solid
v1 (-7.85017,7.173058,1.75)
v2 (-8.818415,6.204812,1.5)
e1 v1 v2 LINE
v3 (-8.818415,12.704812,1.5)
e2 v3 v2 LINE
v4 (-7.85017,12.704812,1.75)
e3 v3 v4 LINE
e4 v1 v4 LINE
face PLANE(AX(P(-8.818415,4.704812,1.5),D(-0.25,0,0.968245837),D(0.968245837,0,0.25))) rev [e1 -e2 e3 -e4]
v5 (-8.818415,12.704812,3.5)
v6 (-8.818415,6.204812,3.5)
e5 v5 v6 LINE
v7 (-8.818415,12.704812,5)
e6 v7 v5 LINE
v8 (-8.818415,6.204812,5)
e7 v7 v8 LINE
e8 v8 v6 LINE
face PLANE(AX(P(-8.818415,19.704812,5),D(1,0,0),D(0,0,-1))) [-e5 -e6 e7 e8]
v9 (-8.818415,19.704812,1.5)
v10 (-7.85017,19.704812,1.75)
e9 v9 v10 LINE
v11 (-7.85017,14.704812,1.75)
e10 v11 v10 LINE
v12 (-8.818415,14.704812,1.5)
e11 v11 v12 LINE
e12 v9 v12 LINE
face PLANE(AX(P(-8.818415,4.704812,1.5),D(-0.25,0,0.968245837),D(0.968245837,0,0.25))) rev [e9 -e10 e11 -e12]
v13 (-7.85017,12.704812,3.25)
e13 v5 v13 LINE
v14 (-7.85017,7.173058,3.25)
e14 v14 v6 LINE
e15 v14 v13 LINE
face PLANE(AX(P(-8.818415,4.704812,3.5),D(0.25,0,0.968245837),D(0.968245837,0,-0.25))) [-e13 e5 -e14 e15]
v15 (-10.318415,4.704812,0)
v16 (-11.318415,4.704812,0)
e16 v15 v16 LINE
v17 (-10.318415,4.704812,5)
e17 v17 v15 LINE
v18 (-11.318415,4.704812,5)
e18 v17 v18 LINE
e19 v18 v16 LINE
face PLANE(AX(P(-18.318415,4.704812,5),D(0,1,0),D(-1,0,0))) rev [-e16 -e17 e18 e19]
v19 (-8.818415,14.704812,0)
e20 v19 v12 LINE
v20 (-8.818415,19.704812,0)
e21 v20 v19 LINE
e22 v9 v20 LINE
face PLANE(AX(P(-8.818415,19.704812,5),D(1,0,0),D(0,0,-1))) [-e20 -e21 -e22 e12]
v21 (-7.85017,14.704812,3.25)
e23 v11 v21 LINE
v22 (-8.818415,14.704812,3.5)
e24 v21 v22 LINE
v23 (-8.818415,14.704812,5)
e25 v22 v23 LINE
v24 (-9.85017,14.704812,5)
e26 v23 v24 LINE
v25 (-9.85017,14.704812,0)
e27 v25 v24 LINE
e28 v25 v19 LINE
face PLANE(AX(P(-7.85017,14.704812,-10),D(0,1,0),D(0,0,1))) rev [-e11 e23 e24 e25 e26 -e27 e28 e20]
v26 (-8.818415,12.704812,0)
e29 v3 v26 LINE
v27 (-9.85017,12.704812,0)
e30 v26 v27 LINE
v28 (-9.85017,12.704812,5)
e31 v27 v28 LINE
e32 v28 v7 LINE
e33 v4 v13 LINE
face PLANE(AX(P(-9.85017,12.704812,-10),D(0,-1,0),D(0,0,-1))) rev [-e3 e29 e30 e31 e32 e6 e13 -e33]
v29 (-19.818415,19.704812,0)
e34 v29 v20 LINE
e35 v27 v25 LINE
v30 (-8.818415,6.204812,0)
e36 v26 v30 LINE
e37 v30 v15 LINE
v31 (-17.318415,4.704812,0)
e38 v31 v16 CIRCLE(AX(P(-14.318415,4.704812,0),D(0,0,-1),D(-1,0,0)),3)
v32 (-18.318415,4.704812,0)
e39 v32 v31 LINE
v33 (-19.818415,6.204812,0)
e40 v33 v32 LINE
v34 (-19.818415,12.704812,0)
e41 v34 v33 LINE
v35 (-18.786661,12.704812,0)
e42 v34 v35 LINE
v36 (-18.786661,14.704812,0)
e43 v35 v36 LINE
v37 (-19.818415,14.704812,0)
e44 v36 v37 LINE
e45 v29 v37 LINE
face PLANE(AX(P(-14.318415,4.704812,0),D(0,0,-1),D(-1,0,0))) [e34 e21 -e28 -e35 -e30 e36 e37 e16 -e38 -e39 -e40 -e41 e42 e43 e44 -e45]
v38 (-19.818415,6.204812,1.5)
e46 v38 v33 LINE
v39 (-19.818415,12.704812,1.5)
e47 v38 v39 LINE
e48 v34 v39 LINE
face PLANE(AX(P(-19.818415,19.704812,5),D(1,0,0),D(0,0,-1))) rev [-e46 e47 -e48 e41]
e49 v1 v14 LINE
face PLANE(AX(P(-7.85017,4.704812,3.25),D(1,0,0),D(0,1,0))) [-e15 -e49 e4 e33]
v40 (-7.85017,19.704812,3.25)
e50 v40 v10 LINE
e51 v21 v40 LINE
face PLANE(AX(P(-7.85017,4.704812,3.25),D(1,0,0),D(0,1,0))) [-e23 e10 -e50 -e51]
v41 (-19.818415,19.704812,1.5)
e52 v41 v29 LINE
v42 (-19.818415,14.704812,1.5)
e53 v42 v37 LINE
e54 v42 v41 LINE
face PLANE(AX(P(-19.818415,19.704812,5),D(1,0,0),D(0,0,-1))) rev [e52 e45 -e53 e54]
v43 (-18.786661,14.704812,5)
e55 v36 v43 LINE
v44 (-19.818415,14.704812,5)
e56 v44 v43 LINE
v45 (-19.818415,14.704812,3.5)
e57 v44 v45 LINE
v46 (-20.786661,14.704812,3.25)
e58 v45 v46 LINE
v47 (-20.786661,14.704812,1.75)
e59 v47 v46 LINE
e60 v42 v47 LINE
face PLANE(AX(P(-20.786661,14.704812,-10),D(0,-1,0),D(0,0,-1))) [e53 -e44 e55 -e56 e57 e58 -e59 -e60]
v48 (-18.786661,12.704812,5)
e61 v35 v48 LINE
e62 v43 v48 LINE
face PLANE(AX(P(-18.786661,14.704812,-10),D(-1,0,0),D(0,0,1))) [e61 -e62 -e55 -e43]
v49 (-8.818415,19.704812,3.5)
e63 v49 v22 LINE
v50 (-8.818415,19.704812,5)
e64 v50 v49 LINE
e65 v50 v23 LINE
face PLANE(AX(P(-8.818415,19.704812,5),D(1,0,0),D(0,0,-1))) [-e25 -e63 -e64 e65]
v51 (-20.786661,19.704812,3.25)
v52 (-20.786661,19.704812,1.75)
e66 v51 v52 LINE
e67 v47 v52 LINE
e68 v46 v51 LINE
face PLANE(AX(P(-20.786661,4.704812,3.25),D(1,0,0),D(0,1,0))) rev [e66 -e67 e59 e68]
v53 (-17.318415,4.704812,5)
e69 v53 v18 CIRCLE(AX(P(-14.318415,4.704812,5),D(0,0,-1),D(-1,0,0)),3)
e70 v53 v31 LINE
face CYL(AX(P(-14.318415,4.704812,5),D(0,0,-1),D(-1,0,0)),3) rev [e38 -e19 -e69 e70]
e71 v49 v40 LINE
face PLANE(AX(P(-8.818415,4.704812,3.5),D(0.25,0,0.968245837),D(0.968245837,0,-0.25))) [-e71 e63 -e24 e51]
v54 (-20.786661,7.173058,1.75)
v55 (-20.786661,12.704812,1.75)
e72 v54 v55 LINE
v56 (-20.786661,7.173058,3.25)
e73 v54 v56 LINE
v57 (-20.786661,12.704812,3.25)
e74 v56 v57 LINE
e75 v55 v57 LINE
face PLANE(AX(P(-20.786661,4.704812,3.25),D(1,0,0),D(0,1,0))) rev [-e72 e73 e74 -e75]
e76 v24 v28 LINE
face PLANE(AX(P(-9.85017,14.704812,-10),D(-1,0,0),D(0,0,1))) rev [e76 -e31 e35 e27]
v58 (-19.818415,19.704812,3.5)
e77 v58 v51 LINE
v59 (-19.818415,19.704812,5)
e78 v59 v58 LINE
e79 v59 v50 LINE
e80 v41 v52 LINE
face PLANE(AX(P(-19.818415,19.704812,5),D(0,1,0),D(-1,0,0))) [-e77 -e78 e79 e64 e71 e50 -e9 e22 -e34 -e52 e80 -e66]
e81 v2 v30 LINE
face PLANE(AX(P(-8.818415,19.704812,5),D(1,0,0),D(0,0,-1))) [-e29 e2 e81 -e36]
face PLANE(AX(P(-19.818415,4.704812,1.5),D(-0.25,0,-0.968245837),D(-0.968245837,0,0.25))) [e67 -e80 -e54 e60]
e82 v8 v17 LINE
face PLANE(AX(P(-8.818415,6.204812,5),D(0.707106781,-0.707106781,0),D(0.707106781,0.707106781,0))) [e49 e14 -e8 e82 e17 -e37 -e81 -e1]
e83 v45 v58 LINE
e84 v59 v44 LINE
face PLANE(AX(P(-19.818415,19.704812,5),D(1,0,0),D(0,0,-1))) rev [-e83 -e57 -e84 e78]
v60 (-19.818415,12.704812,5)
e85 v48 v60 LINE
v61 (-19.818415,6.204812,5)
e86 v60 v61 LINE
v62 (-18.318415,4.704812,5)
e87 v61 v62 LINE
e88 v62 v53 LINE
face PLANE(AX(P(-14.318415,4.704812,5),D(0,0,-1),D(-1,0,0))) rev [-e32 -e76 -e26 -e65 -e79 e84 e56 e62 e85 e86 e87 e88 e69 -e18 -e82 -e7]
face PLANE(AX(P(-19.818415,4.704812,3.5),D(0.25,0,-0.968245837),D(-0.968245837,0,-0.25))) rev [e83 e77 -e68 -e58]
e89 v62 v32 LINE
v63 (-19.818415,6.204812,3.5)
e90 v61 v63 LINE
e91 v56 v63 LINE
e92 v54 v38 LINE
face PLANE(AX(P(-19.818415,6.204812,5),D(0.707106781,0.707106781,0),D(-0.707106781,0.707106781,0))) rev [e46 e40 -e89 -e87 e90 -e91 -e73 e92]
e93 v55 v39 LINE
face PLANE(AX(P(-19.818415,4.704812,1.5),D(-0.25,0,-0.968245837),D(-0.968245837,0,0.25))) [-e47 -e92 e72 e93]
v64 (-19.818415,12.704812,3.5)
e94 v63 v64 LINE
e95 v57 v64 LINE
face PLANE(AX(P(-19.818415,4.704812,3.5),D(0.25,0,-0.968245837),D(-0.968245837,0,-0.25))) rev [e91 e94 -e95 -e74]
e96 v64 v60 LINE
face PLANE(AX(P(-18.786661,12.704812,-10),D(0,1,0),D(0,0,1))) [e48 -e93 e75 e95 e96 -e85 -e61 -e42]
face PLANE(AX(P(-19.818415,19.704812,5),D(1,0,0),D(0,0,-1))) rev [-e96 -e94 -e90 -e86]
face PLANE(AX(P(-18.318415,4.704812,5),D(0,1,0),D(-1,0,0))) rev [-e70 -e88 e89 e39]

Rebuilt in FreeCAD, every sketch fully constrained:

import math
import FreeCAD as App
import Part
import Sketcher

V = App.Vector
Q = App.Units.Quantity


def add_polygon(sketch, points):
    """Adds a closed chain of lines whose ends are joined by coincident constraints."""
    first, n = sketch.GeometryCount, len(points)
    for a, b in zip(points, points[1:] + points[:1]):
        sketch.addGeometry(Part.LineSegment(App.Vector(*a, 0), App.Vector(*b, 0)), False)
    for i in range(n):
        sketch.addConstraint(Sketcher.Constraint("Coincident", first + i, 2, first + (i + 1) % n, 1))

doc = App.newDocument("Part")
body = doc.addObject("PartDesign::Body", "Body")

# Sketch on XY plane
sketch1 = body.newObject("Sketcher::SketchObject", "Sketch")
sketch1.AttachmentSupport = (doc.getObject("XY_Plane"), [""])
sketch1.MapMode = "FlatFace"
sketch1.addGeometry([
    Part.LineSegment(V(-8.8, 19.7, 0), V(-19.8, 19.7, 0)),  # 0
    Part.LineSegment(V(-19.8, 19.7, 0), V(-19.8, 6.2, 0)),  # 1
    Part.LineSegment(V(-19.8, 6.2, 0), V(-18.3, 4.7, 0)),  # 2
    Part.LineSegment(V(-18.3, 4.7, 0), V(-17.3, 4.7, 0)),  # 3
    Part.ArcOfCircle(Part.Circle(V(-14.3, 4.7, 0), V(0, 0, 1), 3), math.radians(0), math.radians(180)),  # 4
    Part.LineSegment(V(-11.3, 4.7, 0), V(-10.3, 4.7, 0)),  # 5
    Part.LineSegment(V(-10.3, 4.7, 0), V(-8.8, 6.2, 0)),  # 6
    Part.LineSegment(V(-8.8, 6.2, 0), V(-8.8, 19.7, 0)),  # 7
], False)
sketch1.addConstraint([
    Sketcher.Constraint("Coincident", 0, 2, 1, 1),
    Sketcher.Constraint("Coincident", 1, 2, 2, 1),
    Sketcher.Constraint("Coincident", 2, 2, 3, 1),
    Sketcher.Constraint("Coincident", 3, 2, 4, 2),
    Sketcher.Constraint("Coincident", 4, 1, 5, 1),
    Sketcher.Constraint("Coincident", 5, 2, 6, 1),
    Sketcher.Constraint("Coincident", 6, 2, 7, 1),
    Sketcher.Constraint("Coincident", 7, 2, 0, 1),
    Sketcher.Constraint("Horizontal", 0),
    Sketcher.Constraint("Vertical", 1),
    Sketcher.Constraint("Horizontal", 3),
    Sketcher.Constraint("Horizontal", 5),
    Sketcher.Constraint("Vertical", 7),
    Sketcher.Constraint("Perpendicular", 2, 6),
    Sketcher.Constraint("Horizontal", 4, 3, 2, 2),
    Sketcher.Constraint("Horizontal", 3, 2, 4, 1),
    Sketcher.Constraint("Horizontal", 1, 2, 6, 2),
    Sketcher.Constraint("Equal", 3, 5),
    Sketcher.Constraint("Equal", 2, 6),
    Sketcher.Constraint("Radius", 4, Q("3 mm")),
    Sketcher.Constraint("DistanceX", 0, 2, 0, 1, Q("11 mm")),
    Sketcher.Constraint("DistanceX", 3, 1, 3, 2, Q("1 mm")),
    Sketcher.Constraint("DistanceY", 1, 2, 1, 1, Q("13.5 mm")),
    Sketcher.Constraint("DistanceX", 4, 3, -1, 1, Q("14.318415 mm")),
    Sketcher.Constraint("DistanceY", -1, 1, 4, 3, Q("4.704812 mm")),
])
pad1 = body.newObject("PartDesign::Pad", "Pad")
pad1.Profile = sketch1
pad1.Length = 5

# Sketch on XZ plane
sketch2 = body.newObject("Sketcher::SketchObject", "Sketch001")
sketch2.AttachmentSupport = (doc.getObject("XZ_Plane"), [""])
sketch2.MapMode = "FlatFace"
sketch2.AttachmentOffset = App.Placement(V(0, 0, -19.704812), App.Rotation())
add_polygon(sketch2, [(-8.8, 1.5), (-19.8, 1.5), (-20.8, 1.8), (-20.8, 3.2), (-19.8, 3.5), (-8.8, 3.5), (-7.9, 3.2), (-7.9, 1.8)])  # lines 0-7
sketch2.addConstraint([
    Sketcher.Constraint("Horizontal", 0),
    Sketcher.Constraint("Vertical", 2),
    Sketcher.Constraint("Horizontal", 4),
    Sketcher.Constraint("Vertical", 6),
    Sketcher.Constraint("Parallel", 1, 5),
    Sketcher.Constraint("Parallel", 3, 7),
    Sketcher.Constraint("Horizontal", 2, 2, 5, 2),
    Sketcher.Constraint("Horizontal", 1, 2, 6, 2),
    Sketcher.Constraint("Vertical", 0, 2, 3, 2),
    Sketcher.Constraint("Vertical", 4, 2, 7, 2),
    Sketcher.Constraint("DistanceX", 0, 2, 0, 1, Q("11 mm")),
    Sketcher.Constraint("Distance", 1, Q("1 mm")),
    Sketcher.Constraint("DistanceY", 2, 1, 2, 2, Q("1.5 mm")),
    Sketcher.Constraint("DistanceY", 0, 2, 3, 2, Q("2 mm")),
    Sketcher.Constraint("DistanceY", -1, 1, 0, 2, Q("1.5 mm")),
    Sketcher.Constraint("DistanceX", 1, 2, -1, 1, Q("20.786661 mm")),
])
pad2 = body.newObject("PartDesign::Pad", "Pad001")
pad2.Profile = sketch2
pad2.Length = 15

# Sketch on XY plane
sketch3 = body.newObject("Sketcher::SketchObject", "Sketch002")
sketch3.AttachmentSupport = (doc.getObject("XY_Plane"), [""])
sketch3.MapMode = "FlatFace"
sketch3.AttachmentOffset = App.Placement(V(0, 0, 5), App.Rotation())
sketch3.addGeometry([
    Part.LineSegment(V(-18.3, 4.7, 0), V(-20.8, 7.2, 0)),  # 0
    Part.LineSegment(V(-20.8, 7.2, 0), V(-20.8, 3.7, 0)),  # 1
    Part.LineSegment(V(-20.8, 3.7, 0), V(-7.9, 3.7, 0)),  # 2
    Part.LineSegment(V(-7.9, 3.7, 0), V(-7.9, 7.2, 0)),  # 3
    Part.LineSegment(V(-7.9, 7.2, 0), V(-10.3, 4.7, 0)),  # 4
    Part.LineSegment(V(-10.3, 4.7, 0), V(-11.3, 4.7, 0)),  # 5
    Part.ArcOfCircle(Part.Circle(V(-14.3, 4.7, 0), V(0, 0, 1), 3), math.radians(0), math.radians(180)),  # 6
    Part.LineSegment(V(-17.3, 4.7, 0), V(-18.3, 4.7, 0)),  # 7
], False)
sketch3.addConstraint([
    Sketcher.Constraint("Coincident", 0, 2, 1, 1),
    Sketcher.Constraint("Coincident", 1, 2, 2, 1),
    Sketcher.Constraint("Coincident", 2, 2, 3, 1),
    Sketcher.Constraint("Coincident", 3, 2, 4, 1),
    Sketcher.Constraint("Coincident", 4, 2, 5, 1),
    Sketcher.Constraint("Coincident", 5, 2, 6, 1),
    Sketcher.Constraint("Coincident", 6, 2, 7, 1),
    Sketcher.Constraint("Coincident", 7, 2, 0, 1),
    Sketcher.Constraint("Vertical", 1),
    Sketcher.Constraint("Horizontal", 2),
    Sketcher.Constraint("Vertical", 3),
    Sketcher.Constraint("Horizontal", 5),
    Sketcher.Constraint("Horizontal", 7),
    Sketcher.Constraint("Perpendicular", 0, 4),
    Sketcher.Constraint("Horizontal", 0, 2, 3, 2),
    Sketcher.Constraint("Horizontal", 6, 3, 4, 2),
    Sketcher.Constraint("Horizontal", 5, 2, 6, 2),
    Sketcher.Constraint("Equal", 5, 7),
    Sketcher.Constraint("Equal", 0, 4),
    Sketcher.Constraint("Radius", 6, Q("3 mm")),
    Sketcher.Constraint("DistanceX", 5, 2, 5, 1, Q("1 mm")),
    Sketcher.Constraint("DistanceX", 2, 1, 2, 2, Q("12.936492 mm")),
    Sketcher.Constraint("DistanceY", 1, 2, 1, 1, Q("3.463461 mm")),
    Sketcher.Constraint("DistanceX", 0, 2, -1, 1, Q("20.786661 mm")),
    Sketcher.Constraint("DistanceY", -1, 1, 6, 3, Q("4.704812 mm")),
])
pocket1 = body.newObject("PartDesign::Pocket", "Pocket")
pocket1.Profile = sketch3
pocket1.Length = 15

# Sketch on XY plane
sketch4 = body.newObject("Sketcher::SketchObject", "Sketch003")
sketch4.AttachmentSupport = (doc.getObject("XY_Plane"), [""])
sketch4.MapMode = "FlatFace"
sketch4.AttachmentOffset = App.Placement(V(0, 0, 5), App.Rotation())
add_polygon(sketch4, [(-20.8, 14.7), (-20.8, 12.7), (-18.8, 12.7), (-18.8, 14.7)])  # lines 0-3
sketch4.addConstraint([
    Sketcher.Constraint("Vertical", 0),
    Sketcher.Constraint("Horizontal", 1),
    Sketcher.Constraint("Vertical", 2),
    Sketcher.Constraint("Horizontal", 3),
    Sketcher.Constraint("Equal", 3, 0),
    Sketcher.Constraint("DistanceX", 1, 1, 1, 2, Q("2 mm")),
    Sketcher.Constraint("DistanceX", 0, 2, -1, 1, Q("20.786661 mm")),
    Sketcher.Constraint("DistanceY", -1, 1, 0, 2, Q("12.704812 mm")),
])
pocket2 = body.newObject("PartDesign::Pocket", "Pocket001")
pocket2.Profile = sketch4
pocket2.Length = 15
doc.recompute()

datumplane = body.newObject("PartDesign::Plane", "DatumPlane")
datumplane.AttachmentSupport = (doc.getObject("YZ_Plane"), [""])
datumplane.MapMode = "FlatFace"
datumplane.AttachmentOffset = App.Placement(V(0, 0, -14.318415), App.Rotation())
mirrored = body.newObject("PartDesign::Mirrored", "Mirrored")
mirrored.Originals = [pocket2]
mirrored.MirrorPlane = (datumplane, [""])
body.Tip = mirrored

doc.recompute()
